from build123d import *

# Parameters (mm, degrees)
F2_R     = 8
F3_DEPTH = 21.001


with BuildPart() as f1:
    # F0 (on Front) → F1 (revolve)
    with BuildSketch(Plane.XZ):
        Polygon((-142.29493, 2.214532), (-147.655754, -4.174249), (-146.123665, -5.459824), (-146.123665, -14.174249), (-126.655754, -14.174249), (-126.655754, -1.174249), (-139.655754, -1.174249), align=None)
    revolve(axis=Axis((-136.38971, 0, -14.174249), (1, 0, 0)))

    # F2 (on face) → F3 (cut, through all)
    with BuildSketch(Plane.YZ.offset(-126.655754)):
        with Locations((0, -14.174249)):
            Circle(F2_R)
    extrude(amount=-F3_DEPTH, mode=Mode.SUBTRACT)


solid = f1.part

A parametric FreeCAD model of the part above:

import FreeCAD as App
import Part
import Sketcher

V = App.Vector
Q = App.Units.Quantity


def add_polygon(sketch, points):
    """Adds a closed chain of lines whose ends are joined by coincident constraints."""
    first, n = sketch.GeometryCount, len(points)
    for a, b in zip(points, points[1:] + points[:1]):
        sketch.addGeometry(Part.LineSegment(App.Vector(*a, 0), App.Vector(*b, 0)), False)
    for i in range(n):
        sketch.addConstraint(Sketcher.Constraint("Coincident", first + i, 2, first + (i + 1) % n, 1))

doc = App.newDocument("Part")
params = doc.addObject("Spreadsheet::Sheet", "Params")
for row, (alias, value) in enumerate([
    ("sketch1_width", "13 mm"),
    ("sketch1_width2", "21 mm"),
    ("sketch1_length", "2 mm"),
    ("revolution_angle", "360 deg"),
    ("sketch2_diameter", "16 mm"),
], start=1):
    params.set(f"A{row}", alias)
    params.set(f"B{row}", "=" + value)
    params.setAlias(f"B{row}", alias)

body = doc.addObject("PartDesign::Body", "Body")

# Sketch on XZ plane
sketch1 = body.newObject("Sketcher::SketchObject", "Sketch")
sketch1.AttachmentSupport = (doc.getObject("XZ_Plane"), [""])
sketch1.MapMode = "FlatFace"
add_polygon(sketch1, [(-142.3, 2.2), (-147.7, -4.2), (-146.1, -5.5), (-146.1, -14.2), (-126.7, -14.2), (-126.7, -1.2), (-139.7, -1.2)])  # lines 0-6
sketch1.addGeometry(Part.LineSegment(V(-147.7, -14.2, 0), V(-126.7, -14.2, 0)), True)  # axis
sketch1.addConstraint([
    Sketcher.Constraint("Vertical", 2),
    Sketcher.Constraint("Horizontal", 3),
    Sketcher.Constraint("Vertical", 4),
    Sketcher.Constraint("Horizontal", 5),
    Sketcher.Constraint("Horizontal", 7),
    Sketcher.Constraint("Coincident", 7, 2, 3, 2),
    Sketcher.Constraint("Perpendicular", 0, 1),
    Sketcher.Constraint("Vertical", 0, 2, 7, 1),
    Sketcher.Constraint("Equal", 5, 4),
    Sketcher.Constraint("DistanceX", 5, 2, 5, 1, Q("13 mm")),
    Sketcher.Constraint("DistanceX", 7, 1, 7, 2, Q("21 mm")),
    Sketcher.Constraint("Angle", 0, Q("-130.000001 deg")),
    Sketcher.Constraint("Distance", 1, Q("2 mm")),
    Sketcher.Constraint("DistanceY", 2, 2, 0, 2, Q("10 mm")),
    Sketcher.Constraint("Distance", 0, Q("8.339961 mm")),
    Sketcher.Constraint("DistanceY", 0, 2, -1, 1, Q("4.174249 mm")),
    Sketcher.Constraint("DistanceX", 6, 2, -1, 1, Q("142.29493 mm")),
])
sketch1.setExpression("Constraints[16]", "Params.sketch1_width")
sketch1.setExpression("Constraints[17]", "Params.sketch1_width2")
sketch1.setExpression("Constraints[19]", "Params.sketch1_length")
revolution = body.newObject("PartDesign::Revolution", "Revolution")
revolution.Profile = sketch1
revolution.ReferenceAxis = (sketch1, ["Axis0"])
revolution.setExpression("Angle", "Params.revolution_angle")

# Sketch on YZ plane
sketch2 = body.newObject("Sketcher::SketchObject", "Sketch001")
sketch2.AttachmentSupport = (doc.getObject("YZ_Plane"), [""])
sketch2.MapMode = "FlatFace"
sketch2.AttachmentOffset = App.Placement(V(0, 0, -126.655754), App.Rotation())
sketch2.addGeometry(Part.Circle(V(0, -14, 0), V(0, 0, 1), 8), False)
sketch2.addConstraint([
    Sketcher.Constraint("PointOnObject", 0, 3, -2),
    Sketcher.Constraint("Diameter", 0, Q("16 mm")),
    Sketcher.Constraint("DistanceY", 0, 3, -1, 1, Q("14.174249 mm")),
])
sketch2.setExpression("Constraints[1]", "Params.sketch2_diameter")
pocket1 = body.newObject("PartDesign::Pocket", "Pocket")
pocket1.Profile = sketch2
pocket1.Type = "ThroughAll"

doc.recompute()
